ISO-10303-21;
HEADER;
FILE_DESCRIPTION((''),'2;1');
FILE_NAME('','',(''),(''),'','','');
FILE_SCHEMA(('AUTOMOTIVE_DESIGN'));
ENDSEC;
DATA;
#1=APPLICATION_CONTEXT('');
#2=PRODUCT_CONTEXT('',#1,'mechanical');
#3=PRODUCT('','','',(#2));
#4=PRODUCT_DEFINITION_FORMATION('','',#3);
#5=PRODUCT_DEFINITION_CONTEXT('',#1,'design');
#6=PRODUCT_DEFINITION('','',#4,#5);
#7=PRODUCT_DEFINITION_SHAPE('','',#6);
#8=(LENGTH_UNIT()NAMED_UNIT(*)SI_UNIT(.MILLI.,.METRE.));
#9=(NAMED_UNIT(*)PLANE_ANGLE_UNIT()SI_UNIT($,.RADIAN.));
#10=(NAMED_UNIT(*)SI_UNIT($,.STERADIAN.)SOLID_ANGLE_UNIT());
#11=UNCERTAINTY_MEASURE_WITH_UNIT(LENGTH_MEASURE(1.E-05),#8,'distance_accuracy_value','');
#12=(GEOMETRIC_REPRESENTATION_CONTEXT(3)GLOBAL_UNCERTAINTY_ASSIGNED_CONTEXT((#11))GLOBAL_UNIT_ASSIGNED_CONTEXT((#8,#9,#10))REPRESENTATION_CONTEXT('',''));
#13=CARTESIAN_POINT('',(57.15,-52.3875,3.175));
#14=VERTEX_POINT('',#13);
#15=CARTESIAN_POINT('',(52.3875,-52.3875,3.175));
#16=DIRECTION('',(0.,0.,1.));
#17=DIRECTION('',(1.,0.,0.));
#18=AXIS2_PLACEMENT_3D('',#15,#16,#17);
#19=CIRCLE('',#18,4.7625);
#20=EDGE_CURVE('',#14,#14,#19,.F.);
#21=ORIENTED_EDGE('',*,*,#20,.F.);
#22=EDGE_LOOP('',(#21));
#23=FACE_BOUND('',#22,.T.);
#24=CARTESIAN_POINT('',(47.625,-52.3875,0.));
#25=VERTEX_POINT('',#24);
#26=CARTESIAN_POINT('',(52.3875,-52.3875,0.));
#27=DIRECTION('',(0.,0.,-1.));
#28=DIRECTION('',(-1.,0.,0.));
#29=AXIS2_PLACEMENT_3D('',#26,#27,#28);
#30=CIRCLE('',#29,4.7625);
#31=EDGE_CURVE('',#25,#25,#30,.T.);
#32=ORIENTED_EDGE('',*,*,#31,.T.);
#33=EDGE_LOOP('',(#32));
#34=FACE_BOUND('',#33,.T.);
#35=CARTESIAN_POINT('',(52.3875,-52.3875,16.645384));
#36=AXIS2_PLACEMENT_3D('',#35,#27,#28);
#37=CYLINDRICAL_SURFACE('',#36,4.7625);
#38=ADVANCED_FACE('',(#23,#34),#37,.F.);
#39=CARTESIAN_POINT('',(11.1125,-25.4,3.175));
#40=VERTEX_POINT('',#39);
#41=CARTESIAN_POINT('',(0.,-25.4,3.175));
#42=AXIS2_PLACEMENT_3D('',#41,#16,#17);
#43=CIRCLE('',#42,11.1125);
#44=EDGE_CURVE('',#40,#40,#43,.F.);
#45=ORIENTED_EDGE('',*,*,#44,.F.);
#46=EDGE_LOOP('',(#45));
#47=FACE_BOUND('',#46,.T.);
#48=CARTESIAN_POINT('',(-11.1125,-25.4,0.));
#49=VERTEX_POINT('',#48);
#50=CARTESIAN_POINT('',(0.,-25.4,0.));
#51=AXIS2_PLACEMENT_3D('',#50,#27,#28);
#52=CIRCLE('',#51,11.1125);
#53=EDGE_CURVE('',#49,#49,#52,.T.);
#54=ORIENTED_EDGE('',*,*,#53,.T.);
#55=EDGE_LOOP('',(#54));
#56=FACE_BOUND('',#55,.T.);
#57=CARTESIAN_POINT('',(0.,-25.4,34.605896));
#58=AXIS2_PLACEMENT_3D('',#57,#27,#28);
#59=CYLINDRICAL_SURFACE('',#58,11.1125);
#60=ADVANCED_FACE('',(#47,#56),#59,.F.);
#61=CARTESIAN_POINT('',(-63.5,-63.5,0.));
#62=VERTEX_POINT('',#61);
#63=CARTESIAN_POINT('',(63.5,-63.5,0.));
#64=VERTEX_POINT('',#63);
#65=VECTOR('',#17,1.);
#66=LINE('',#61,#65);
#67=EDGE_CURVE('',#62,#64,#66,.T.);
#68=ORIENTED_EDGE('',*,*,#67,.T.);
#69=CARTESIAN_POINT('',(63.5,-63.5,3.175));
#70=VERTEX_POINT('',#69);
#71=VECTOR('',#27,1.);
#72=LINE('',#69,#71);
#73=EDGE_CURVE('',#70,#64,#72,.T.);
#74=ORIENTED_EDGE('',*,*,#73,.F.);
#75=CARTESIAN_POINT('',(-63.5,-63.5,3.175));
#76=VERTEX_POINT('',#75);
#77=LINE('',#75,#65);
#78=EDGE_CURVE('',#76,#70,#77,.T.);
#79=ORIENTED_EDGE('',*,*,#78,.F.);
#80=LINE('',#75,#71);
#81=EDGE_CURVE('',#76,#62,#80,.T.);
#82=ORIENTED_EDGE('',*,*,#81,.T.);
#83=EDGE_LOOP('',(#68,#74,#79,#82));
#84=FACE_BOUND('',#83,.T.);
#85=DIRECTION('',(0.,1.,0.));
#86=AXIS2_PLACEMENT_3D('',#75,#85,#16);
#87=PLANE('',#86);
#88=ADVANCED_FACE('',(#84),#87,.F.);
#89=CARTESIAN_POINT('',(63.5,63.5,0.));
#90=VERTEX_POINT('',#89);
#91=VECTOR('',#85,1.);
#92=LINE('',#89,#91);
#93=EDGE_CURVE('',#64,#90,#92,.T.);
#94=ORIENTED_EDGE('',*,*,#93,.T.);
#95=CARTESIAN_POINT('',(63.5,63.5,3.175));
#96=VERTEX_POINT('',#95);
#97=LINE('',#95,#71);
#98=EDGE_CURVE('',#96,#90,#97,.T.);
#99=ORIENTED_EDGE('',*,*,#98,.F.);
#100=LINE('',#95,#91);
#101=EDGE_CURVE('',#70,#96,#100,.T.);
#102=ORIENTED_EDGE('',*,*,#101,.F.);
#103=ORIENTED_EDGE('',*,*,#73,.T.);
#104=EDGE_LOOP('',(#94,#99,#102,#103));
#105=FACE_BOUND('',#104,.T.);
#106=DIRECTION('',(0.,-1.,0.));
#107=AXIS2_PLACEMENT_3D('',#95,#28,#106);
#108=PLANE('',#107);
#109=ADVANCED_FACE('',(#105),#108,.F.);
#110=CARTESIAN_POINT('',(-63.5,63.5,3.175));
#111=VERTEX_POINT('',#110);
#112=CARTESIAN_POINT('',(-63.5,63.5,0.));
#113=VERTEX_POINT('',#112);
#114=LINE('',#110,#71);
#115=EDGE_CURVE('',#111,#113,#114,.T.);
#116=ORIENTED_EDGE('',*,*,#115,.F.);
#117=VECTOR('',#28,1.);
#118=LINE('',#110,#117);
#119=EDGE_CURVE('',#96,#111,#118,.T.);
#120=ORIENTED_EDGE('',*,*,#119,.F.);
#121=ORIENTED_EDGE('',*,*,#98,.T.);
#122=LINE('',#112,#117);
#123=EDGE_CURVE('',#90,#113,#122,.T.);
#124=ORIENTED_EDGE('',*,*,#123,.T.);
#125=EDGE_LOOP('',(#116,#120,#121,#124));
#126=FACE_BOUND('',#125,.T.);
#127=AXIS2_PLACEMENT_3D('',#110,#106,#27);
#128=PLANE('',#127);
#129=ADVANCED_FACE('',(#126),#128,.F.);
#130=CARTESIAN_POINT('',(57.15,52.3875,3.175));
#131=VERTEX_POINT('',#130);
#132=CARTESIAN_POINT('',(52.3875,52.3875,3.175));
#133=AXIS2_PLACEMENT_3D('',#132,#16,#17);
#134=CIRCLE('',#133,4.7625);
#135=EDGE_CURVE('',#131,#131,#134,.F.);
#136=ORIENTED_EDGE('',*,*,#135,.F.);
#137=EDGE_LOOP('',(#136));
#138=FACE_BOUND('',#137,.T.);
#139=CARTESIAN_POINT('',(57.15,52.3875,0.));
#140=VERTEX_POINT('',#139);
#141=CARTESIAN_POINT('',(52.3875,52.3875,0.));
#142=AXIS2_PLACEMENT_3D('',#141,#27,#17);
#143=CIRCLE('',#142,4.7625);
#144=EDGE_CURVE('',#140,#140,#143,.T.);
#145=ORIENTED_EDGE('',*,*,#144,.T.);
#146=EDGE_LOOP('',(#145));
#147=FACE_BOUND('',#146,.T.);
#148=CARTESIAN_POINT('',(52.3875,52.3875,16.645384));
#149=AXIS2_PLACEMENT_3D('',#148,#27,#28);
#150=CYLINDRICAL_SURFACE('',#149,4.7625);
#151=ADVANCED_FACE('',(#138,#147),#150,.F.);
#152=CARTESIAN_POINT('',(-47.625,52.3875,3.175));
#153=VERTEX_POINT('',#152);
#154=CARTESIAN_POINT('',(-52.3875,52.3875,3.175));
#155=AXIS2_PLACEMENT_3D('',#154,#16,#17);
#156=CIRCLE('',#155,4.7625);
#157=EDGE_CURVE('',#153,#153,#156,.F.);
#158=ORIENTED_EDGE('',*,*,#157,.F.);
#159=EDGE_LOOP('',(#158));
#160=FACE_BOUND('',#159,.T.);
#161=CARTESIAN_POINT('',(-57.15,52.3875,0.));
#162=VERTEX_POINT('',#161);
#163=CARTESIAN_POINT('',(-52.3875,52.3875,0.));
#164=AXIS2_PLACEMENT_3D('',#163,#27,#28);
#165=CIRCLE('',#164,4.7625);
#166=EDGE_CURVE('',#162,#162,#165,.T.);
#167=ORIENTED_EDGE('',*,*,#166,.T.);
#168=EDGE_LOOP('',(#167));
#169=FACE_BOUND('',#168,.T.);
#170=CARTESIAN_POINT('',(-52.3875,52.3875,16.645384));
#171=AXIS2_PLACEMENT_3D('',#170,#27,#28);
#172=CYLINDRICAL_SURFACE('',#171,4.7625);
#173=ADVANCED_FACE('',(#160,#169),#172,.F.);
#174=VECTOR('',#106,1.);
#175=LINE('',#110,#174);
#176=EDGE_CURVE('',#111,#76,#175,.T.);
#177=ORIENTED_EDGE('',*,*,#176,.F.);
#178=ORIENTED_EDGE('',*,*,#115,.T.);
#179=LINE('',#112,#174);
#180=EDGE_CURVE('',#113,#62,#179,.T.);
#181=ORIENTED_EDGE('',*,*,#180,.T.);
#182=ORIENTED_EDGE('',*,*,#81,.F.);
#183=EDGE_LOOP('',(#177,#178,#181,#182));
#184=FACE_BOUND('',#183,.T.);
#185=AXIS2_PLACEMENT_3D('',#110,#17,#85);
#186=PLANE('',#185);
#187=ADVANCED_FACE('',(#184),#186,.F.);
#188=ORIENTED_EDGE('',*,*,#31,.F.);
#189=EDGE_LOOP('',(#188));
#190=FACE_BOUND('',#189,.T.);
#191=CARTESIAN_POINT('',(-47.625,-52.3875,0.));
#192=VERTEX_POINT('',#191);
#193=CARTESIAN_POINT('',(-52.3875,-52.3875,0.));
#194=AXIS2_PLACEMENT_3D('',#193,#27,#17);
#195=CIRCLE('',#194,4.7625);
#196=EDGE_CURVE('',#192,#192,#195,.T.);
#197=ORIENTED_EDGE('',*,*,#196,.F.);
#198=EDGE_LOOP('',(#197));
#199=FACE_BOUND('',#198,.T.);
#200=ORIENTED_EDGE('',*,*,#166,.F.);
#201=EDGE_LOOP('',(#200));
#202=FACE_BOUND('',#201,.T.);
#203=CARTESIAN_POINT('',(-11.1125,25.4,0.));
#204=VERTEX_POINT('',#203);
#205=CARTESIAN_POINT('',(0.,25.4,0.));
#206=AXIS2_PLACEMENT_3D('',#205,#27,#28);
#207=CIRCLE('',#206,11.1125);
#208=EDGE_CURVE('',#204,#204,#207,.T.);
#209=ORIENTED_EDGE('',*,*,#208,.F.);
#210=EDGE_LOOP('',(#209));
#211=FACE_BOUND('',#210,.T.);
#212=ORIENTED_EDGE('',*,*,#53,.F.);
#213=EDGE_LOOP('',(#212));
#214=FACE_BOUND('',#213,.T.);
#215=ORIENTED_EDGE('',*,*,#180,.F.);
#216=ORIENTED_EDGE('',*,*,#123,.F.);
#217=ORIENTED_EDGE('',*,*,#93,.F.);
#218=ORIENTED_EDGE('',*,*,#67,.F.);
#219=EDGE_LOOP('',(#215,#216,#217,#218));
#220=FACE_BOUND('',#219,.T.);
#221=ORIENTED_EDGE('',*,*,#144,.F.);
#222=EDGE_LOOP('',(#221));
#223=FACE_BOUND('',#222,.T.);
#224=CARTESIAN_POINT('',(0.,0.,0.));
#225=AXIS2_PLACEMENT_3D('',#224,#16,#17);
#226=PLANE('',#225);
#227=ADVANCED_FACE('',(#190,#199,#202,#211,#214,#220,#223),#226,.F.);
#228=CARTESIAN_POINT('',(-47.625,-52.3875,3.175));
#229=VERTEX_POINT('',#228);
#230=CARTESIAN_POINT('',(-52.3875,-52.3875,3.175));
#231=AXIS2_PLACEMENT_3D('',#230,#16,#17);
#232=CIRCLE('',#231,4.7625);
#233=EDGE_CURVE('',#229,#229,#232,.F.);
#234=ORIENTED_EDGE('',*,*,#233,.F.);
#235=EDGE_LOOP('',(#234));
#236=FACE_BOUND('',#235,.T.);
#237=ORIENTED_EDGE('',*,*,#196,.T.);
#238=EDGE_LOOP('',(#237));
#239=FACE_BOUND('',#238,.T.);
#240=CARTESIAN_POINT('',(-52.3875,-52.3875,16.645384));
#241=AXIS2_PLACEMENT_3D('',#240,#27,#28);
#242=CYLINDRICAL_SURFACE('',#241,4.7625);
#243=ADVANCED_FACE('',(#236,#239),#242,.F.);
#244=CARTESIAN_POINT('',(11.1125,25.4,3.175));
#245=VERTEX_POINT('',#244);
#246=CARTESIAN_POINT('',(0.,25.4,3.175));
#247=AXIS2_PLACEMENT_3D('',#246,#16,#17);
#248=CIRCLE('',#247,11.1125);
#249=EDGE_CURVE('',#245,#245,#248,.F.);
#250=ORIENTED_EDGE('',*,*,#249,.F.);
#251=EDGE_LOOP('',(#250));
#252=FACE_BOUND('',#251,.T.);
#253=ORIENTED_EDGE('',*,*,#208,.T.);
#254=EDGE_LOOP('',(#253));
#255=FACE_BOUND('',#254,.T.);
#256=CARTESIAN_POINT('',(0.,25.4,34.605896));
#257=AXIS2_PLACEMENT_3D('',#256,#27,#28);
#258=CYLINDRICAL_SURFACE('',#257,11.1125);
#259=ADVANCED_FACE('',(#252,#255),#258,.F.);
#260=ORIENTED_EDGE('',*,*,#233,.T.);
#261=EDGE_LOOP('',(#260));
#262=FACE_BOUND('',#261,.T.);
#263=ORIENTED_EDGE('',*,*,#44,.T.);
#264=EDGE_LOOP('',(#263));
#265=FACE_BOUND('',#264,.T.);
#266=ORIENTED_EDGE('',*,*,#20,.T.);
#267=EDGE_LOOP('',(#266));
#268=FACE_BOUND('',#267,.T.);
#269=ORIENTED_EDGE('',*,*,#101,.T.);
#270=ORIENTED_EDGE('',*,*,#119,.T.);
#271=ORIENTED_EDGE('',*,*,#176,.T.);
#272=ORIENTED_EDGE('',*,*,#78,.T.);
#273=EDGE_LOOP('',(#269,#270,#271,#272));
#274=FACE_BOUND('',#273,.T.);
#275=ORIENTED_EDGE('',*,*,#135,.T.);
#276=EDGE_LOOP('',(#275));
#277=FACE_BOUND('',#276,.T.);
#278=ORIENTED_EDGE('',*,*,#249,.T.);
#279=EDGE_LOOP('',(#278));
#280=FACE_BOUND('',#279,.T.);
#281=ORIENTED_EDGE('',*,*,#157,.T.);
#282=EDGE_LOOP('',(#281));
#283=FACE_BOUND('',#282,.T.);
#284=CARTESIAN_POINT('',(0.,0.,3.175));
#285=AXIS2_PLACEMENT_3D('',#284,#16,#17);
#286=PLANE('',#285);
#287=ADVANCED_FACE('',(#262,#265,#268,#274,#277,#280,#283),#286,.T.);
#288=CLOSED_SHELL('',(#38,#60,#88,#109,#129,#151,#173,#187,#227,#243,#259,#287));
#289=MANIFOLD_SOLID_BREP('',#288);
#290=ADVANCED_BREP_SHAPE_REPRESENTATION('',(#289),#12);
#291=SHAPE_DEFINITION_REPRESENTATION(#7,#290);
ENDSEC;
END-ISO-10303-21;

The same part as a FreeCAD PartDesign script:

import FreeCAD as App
import Part
import Sketcher
Q = App.Units.Quantity

doc = App.newDocument("Part")
body = doc.addObject("PartDesign::Body", "Body")

# Sketch on XY plane
sketch1 = body.newObject("Sketcher::SketchObject", "Sketch")
sketch1.AttachmentSupport = (doc.getObject("XY_Plane"), [""])
sketch1.MapMode = "FlatFace"
sketch1.addGeometry([
    Part.LineSegment(App.Vector(-64, 64, 0), App.Vector(-64, -64, 0)),
    Part.LineSegment(App.Vector(-64, -64, 0), App.Vector(64, -64, 0)),
    Part.LineSegment(App.Vector(64, -64, 0), App.Vector(64, 64, 0)),
    Part.LineSegment(App.Vector(64, 64, 0), App.Vector(-64, 64, 0)),
], False)
sketch1.addConstraint([
    Sketcher.Constraint("Coincident", 0, 2, 1, 1),
    Sketcher.Constraint("Coincident", 1, 2, 2, 1),
    Sketcher.Constraint("Coincident", 2, 2, 3, 1),
    Sketcher.Constraint("Coincident", 3, 2, 0, 1),
    Sketcher.Constraint("Vertical", 0),
    Sketcher.Constraint("Horizontal", 1),
    Sketcher.Constraint("Vertical", 2),
    Sketcher.Constraint("Horizontal", 3),
    Sketcher.Constraint("Symmetric", 0, 2, 2, 2, -1, 1),
    Sketcher.Constraint("Equal", 3, 0),
    Sketcher.Constraint("DistanceX", 1, 1, 1, 2, Q("5 in")),
])
pad1 = body.newObject("PartDesign::Pad", "Pad")
pad1.Profile = sketch1
pad1.Length = Q("0.125 in")

# Sketch on XY plane
sketch2 = body.newObject("Sketcher::SketchObject", "Sketch001")
sketch2.AttachmentSupport = (doc.getObject("XY_Plane"), [""])
sketch2.MapMode = "FlatFace"
sketch2.addGeometry([
    Part.Circle(App.Vector(0, 25, 0), App.Vector(0, 0, 1), 11),
    Part.Circle(App.Vector(0, -25, 0), App.Vector(0, 0, 1), 11),
], False)
sketch2.addConstraint([
    Sketcher.Constraint("Equal", 0, 1),
    Sketcher.Constraint("Symmetric", 0, 3, 1, 3, -1, 1),
    Sketcher.Constraint("PointOnObject", 0, 3, -2),
    Sketcher.Constraint("Diameter", 0, Q("0.875 in")),
    Sketcher.Constraint("DistanceY", -1, 1, 0, 3, Q("1 in")),
])
pocket1 = body.newObject("PartDesign::Pocket", "Pocket")
pocket1.Profile = sketch2
pocket1.Length = Q("0.125 in")
pocket1.Reversed = True

# Sketch on XY plane
sketch3 = body.newObject("Sketcher::SketchObject", "Sketch002")
sketch3.AttachmentSupport = (doc.getObject("XY_Plane"), [""])
sketch3.MapMode = "FlatFace"
sketch3.addGeometry([
    Part.Circle(App.Vector(-52.4, 52.4, 0), App.Vector(0, 0, 1), 4.8),
    Part.Circle(App.Vector(-52.4, -52.4, 0), App.Vector(0, 0, 1), 4.8),
    Part.Circle(App.Vector(52.4, 52.4, 0), App.Vector(0, 0, 1), 4.8),
    Part.Circle(App.Vector(52.4, -52.4, 0), App.Vector(0, 0, 1), 4.8),
], False)
sketch3.addConstraint([
    Sketcher.Constraint("Equal", 0, 1),
    Sketcher.Constraint("Equal", 1, 2),
    Sketcher.Constraint("Equal", 2, 3),
    Sketcher.Constraint("Symmetric", 1, 3, 2, 3, -1, 1),
    Sketcher.Constraint("Symmetric", 0, 3, 3, 3, -1, 1),
    Sketcher.Constraint("Symmetric", 0, 3, 2, 3, -2),
    Sketcher.Constraint("Diameter", 0, Q("0.375 in")),
    Sketcher.Constraint("DistanceX", 0, 3, -1, 1, Q("2.0625 in")),
    Sketcher.Constraint("DistanceY", -1, 1, 0, 3, Q("2.0625 in")),
])
pocket2 = body.newObject("PartDesign::Pocket", "Pocket001")
pocket2.Profile = sketch3
pocket2.Length = Q("0.125 in")
pocket2.Reversed = True

doc.recompute()
